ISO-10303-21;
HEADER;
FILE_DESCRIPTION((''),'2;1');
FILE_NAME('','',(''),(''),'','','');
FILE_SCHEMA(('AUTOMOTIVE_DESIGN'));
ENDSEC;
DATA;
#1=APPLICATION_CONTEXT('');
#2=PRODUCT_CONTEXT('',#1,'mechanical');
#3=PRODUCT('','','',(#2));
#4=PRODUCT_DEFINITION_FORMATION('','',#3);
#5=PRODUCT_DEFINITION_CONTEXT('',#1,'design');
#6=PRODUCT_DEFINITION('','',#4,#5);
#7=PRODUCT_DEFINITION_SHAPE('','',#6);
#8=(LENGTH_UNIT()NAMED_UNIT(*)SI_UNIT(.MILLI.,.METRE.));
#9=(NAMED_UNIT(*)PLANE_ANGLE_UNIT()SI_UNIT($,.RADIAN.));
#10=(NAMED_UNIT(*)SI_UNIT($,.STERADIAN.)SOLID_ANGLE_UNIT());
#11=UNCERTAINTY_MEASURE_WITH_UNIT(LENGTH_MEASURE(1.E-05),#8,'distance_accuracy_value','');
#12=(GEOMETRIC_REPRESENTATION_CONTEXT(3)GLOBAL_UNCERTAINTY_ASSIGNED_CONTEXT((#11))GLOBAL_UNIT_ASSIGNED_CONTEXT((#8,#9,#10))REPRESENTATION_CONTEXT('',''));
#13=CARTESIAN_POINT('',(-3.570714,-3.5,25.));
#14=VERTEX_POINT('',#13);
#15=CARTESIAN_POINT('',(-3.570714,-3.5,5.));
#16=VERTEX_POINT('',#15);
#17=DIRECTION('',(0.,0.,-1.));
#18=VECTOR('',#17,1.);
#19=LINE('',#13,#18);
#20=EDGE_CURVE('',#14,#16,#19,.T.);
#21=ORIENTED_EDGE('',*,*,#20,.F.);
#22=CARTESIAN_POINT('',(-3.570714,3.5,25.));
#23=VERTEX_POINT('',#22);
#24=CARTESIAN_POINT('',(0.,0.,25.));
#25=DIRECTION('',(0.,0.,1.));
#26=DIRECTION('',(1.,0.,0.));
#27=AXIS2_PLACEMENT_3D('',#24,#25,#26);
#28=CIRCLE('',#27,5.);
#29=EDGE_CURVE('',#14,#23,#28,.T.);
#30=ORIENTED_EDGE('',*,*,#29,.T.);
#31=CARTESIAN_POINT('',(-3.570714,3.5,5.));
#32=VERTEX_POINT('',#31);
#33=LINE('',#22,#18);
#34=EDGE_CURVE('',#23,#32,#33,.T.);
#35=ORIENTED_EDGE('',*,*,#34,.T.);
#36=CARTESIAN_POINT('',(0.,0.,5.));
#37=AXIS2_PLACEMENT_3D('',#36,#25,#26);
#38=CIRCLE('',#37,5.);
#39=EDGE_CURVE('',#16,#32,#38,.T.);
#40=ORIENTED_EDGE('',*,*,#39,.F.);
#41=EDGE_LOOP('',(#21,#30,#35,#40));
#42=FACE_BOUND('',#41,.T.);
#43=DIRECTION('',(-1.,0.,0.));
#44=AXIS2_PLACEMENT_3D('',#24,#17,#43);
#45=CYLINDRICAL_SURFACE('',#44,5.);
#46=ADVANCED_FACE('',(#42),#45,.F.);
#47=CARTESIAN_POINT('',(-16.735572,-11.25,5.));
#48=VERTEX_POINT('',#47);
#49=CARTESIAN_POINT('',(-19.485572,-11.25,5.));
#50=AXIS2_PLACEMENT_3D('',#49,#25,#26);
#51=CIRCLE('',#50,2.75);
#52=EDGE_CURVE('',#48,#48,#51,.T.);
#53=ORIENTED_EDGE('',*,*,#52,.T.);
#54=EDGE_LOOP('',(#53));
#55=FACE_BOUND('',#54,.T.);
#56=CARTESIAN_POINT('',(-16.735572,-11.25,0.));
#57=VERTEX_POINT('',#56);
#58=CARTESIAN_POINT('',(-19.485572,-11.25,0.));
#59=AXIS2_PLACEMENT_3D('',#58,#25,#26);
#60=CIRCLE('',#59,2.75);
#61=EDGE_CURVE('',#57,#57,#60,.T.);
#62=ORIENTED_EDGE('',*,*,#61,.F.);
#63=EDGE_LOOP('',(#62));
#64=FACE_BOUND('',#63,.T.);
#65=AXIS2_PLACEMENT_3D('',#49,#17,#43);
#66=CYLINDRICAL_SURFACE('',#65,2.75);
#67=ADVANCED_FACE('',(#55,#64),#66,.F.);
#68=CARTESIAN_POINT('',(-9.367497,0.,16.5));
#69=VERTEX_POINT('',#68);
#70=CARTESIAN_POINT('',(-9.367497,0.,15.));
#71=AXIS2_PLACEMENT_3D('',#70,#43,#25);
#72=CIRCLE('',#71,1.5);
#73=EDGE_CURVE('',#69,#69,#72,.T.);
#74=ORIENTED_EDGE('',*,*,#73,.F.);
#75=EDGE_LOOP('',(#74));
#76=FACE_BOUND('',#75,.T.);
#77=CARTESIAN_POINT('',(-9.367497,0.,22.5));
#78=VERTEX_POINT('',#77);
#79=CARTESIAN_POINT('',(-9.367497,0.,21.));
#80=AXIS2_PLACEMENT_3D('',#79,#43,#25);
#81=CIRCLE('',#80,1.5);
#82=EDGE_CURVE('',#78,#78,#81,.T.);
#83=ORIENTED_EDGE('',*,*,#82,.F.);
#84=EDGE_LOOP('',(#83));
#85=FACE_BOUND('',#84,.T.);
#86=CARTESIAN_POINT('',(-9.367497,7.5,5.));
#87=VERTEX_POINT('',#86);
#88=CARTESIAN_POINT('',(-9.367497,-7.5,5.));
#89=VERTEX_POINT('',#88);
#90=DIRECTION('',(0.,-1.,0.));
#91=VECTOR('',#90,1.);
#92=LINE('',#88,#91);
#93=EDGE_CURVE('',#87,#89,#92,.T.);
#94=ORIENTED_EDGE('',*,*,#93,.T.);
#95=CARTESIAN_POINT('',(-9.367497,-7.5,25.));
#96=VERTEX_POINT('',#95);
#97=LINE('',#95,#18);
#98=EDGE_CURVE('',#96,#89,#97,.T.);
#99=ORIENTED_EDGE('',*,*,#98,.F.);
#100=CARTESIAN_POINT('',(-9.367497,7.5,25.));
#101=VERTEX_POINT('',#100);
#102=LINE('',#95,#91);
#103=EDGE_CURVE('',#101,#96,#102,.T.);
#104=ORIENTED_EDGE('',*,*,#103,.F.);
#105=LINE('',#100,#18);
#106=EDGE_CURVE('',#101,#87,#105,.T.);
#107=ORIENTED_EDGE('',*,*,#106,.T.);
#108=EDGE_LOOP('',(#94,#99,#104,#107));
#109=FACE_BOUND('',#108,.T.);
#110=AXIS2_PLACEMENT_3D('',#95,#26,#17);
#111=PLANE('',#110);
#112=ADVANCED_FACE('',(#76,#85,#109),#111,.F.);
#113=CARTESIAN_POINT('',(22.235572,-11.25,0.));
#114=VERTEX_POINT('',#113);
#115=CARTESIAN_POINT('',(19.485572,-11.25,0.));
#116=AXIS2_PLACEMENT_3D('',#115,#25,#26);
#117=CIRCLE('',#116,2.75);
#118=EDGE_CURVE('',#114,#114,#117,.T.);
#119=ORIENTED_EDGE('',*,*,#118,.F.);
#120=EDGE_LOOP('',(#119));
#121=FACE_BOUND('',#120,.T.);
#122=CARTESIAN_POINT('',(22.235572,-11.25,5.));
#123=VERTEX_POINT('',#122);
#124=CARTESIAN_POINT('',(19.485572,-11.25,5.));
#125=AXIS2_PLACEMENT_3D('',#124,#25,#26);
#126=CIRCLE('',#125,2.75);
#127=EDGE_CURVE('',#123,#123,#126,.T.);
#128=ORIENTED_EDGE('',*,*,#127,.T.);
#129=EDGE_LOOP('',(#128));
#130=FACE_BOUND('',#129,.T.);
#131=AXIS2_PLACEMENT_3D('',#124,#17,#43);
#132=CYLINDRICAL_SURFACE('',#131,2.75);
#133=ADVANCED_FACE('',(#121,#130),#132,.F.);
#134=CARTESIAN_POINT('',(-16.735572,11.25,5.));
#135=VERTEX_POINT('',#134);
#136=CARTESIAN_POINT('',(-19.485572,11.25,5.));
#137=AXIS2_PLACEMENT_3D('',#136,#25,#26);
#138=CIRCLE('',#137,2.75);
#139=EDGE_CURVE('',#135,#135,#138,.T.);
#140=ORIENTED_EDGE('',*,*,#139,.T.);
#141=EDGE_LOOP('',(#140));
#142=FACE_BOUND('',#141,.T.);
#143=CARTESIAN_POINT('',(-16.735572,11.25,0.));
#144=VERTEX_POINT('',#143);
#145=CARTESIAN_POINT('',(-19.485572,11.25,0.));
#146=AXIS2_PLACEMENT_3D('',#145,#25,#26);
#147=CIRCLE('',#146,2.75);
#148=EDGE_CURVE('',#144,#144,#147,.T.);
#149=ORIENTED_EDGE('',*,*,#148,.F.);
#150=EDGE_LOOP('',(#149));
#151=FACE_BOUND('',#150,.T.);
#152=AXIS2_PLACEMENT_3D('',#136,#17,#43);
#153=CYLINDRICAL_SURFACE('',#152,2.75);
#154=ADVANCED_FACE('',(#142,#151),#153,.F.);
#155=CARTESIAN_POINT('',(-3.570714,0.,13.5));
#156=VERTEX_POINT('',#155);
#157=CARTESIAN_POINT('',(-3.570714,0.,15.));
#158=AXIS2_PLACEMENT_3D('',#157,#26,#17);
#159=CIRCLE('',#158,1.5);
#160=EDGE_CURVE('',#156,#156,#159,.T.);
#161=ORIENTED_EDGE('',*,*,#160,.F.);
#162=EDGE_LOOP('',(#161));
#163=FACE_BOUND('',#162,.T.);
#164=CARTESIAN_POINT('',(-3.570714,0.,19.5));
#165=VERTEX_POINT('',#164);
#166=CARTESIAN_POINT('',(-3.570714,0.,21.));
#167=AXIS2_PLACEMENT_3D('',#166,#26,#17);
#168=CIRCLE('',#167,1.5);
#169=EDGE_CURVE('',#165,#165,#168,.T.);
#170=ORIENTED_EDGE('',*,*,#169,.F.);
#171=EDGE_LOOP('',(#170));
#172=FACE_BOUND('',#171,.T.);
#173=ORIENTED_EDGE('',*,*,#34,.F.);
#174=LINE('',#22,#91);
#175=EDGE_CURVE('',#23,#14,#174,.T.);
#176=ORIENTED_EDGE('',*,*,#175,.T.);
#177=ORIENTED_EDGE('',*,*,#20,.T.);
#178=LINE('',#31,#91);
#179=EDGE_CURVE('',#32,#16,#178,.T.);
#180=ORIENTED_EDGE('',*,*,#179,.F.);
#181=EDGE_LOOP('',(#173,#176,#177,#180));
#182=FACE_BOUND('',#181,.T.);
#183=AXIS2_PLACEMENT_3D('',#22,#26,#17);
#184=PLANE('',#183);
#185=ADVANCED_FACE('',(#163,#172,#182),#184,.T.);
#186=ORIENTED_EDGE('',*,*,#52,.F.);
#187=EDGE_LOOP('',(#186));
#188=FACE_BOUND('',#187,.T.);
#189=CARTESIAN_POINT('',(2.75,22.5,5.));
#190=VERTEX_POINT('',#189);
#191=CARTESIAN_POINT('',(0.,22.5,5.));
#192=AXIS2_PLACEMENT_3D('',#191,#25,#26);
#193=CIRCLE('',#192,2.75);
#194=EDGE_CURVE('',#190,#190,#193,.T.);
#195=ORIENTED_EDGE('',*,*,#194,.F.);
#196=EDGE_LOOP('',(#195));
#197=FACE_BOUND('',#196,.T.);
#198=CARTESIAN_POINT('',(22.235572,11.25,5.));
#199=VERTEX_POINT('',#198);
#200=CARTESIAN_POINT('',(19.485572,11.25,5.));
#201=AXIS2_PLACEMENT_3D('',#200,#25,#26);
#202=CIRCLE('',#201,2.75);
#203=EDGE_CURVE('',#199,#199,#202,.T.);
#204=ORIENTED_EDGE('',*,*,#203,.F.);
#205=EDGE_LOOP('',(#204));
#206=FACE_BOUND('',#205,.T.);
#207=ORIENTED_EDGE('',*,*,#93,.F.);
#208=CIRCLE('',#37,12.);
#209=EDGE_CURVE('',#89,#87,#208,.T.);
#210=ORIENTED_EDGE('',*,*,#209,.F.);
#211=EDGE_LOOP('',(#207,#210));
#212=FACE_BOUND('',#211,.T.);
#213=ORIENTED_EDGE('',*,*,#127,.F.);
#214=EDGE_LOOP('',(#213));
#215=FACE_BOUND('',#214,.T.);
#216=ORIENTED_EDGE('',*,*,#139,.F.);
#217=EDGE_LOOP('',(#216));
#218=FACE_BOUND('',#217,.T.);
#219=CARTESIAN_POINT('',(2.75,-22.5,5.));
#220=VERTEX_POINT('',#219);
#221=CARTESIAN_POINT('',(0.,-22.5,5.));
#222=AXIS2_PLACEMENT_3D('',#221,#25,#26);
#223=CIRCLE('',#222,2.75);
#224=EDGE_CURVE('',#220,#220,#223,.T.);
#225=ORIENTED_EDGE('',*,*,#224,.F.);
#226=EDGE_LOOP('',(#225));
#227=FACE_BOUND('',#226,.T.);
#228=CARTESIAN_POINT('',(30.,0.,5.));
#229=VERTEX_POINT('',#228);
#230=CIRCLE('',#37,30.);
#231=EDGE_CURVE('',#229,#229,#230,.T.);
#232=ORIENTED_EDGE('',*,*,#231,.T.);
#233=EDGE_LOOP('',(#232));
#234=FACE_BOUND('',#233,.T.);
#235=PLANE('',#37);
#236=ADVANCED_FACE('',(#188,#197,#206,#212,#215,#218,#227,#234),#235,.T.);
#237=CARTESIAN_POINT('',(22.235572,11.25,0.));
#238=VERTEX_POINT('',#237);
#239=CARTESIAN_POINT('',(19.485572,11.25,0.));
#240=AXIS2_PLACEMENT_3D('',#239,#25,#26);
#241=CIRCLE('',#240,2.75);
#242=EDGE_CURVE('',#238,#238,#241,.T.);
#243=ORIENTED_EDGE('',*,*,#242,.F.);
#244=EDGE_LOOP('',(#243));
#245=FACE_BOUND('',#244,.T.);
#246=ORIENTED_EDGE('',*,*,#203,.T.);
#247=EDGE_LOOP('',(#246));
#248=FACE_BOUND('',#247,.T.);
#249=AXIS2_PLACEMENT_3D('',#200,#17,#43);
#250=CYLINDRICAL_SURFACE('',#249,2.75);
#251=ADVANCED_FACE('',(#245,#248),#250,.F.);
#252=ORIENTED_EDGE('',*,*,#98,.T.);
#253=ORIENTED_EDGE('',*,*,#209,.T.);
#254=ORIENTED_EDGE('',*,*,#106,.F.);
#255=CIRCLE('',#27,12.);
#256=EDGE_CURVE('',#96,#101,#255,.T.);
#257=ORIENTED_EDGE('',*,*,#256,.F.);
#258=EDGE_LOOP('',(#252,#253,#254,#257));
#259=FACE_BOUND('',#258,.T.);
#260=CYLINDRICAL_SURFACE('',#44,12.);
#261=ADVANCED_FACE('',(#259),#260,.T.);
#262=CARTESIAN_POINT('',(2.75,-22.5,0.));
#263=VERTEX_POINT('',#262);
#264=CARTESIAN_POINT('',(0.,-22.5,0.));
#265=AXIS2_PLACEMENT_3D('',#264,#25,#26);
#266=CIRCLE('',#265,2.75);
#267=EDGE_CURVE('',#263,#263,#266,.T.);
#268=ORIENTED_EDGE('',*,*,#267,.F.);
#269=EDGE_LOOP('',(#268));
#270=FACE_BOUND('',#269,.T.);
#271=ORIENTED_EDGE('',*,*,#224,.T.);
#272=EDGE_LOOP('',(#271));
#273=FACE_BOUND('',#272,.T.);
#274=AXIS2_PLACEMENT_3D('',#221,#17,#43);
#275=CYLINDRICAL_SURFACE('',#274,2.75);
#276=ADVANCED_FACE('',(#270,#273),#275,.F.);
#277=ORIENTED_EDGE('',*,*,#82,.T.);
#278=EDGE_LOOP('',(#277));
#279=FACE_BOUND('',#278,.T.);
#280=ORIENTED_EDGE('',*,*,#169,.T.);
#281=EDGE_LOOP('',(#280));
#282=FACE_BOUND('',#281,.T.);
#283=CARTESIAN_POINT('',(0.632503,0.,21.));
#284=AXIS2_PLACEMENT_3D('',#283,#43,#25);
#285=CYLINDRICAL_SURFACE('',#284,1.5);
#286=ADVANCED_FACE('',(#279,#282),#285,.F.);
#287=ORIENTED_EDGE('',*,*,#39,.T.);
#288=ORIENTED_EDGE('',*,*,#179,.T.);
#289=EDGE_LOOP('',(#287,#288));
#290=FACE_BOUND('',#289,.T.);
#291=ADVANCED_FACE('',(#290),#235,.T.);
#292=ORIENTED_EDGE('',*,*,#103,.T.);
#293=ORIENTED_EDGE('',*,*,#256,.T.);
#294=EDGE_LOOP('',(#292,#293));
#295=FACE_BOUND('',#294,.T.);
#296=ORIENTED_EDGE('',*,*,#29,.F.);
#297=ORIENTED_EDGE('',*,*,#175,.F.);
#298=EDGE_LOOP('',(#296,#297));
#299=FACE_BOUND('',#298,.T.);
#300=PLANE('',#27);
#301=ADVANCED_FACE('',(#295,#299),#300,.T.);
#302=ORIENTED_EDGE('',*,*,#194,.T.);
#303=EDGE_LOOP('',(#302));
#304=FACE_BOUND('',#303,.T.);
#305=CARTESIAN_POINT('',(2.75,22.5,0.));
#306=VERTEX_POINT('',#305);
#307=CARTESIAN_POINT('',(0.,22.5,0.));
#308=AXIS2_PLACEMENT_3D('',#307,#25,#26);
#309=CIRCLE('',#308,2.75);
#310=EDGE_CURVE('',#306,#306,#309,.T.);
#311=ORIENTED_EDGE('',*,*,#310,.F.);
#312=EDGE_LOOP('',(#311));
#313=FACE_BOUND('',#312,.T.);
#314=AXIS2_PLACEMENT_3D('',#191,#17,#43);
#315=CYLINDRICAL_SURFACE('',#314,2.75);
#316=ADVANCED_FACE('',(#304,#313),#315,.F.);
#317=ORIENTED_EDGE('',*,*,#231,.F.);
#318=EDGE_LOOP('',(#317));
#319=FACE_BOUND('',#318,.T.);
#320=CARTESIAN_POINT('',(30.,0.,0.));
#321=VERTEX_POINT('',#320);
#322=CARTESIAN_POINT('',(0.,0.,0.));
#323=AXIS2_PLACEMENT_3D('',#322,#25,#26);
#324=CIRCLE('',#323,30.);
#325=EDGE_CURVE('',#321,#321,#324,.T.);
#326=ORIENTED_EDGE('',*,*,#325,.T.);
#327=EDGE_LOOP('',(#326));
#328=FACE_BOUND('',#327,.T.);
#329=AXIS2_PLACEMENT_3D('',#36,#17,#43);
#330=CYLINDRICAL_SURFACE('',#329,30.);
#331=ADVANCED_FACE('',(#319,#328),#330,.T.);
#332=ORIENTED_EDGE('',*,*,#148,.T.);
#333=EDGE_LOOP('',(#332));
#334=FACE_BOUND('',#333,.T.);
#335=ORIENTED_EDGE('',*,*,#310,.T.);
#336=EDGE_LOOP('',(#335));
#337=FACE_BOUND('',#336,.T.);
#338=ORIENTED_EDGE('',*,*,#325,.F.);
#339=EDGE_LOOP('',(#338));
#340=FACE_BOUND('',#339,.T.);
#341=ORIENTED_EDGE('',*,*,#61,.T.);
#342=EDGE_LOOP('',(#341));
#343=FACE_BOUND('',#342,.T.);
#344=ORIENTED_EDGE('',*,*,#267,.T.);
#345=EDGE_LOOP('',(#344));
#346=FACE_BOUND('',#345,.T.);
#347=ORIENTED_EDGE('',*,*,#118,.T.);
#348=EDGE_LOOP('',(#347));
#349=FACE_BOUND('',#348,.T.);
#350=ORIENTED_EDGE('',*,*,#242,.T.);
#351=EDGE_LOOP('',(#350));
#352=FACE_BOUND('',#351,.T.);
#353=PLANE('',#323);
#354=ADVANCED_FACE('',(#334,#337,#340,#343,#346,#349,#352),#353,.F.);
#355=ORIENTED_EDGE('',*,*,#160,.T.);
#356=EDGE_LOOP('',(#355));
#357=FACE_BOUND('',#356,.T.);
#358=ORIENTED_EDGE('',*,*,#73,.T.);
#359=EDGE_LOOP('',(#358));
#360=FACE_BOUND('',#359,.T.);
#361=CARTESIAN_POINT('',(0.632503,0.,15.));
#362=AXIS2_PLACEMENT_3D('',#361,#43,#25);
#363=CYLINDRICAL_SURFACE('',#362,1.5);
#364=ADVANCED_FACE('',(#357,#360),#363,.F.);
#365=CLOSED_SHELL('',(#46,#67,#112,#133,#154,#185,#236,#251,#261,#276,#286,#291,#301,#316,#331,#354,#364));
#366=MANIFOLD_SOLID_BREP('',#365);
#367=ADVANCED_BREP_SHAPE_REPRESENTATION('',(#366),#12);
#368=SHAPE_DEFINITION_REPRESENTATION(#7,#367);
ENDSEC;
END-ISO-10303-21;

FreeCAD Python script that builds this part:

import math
import FreeCAD as App
import Part
import Sketcher
from FreeCAD import Vector

doc = App.newDocument("Part")
body = doc.addObject("PartDesign::Body", "Body")

sketch1 = doc.addObject("Sketcher::SketchObject", "Sketch")
body.addObject(sketch1)
sketch1.AttachmentSupport = (doc.XY_Plane, [""])
sketch1.MapMode = "FlatFace"
sketch1.addGeometry([
    Part.Circle(Vector(0, 0, 0), Vector(0, 0, 1), 30),
    Part.Circle(Vector(-19.5, -11.2, 0), Vector(0, 0, 1), 2.8),
    Part.Circle(Vector(0, -22.5, 0), Vector(0, 0, 1), 2.8),
    Part.Circle(Vector(19.5, -11.2, 0), Vector(0, 0, 1), 2.8),
    Part.Circle(Vector(-19.5, 11.2, 0), Vector(0, 0, 1), 2.8),
    Part.Circle(Vector(19.5, 11.2, 0), Vector(0, 0, 1), 2.8),
    Part.Circle(Vector(0, 22.5, 0), Vector(0, 0, 1), 2.8),
], False)
sketch1.addConstraint([
    Sketcher.Constraint("Coincident", 0, 3, -1, 1),
    Sketcher.Constraint("Equal", 1, 2),
    Sketcher.Constraint("Equal", 2, 3),
    Sketcher.Constraint("Equal", 3, 4),
    Sketcher.Constraint("Equal", 4, 5),
    Sketcher.Constraint("Equal", 5, 6),
    Sketcher.Constraint("Symmetric", 3, 3, 4, 3, -1, 1),
    Sketcher.Constraint("Symmetric", 1, 3, 5, 3, -1, 1),
    Sketcher.Constraint("Symmetric", 2, 3, 6, 3, -1, 1),
    Sketcher.Constraint("Symmetric", 1, 3, 3, 3, -2),
    Sketcher.Constraint("PointOnObject", 2, 3, -2),
    Sketcher.Constraint("Diameter", 0, 60.0),
    Sketcher.Constraint("Diameter", 1, 5.5),
    Sketcher.Constraint("DistanceY", 2, 3, -1, 1, 22.5),
    Sketcher.Constraint("DistanceY", 1, 3, 4, 3, 22.5),
    Sketcher.Constraint("DistanceX", 1, 3, -1, 1, 19.485572),
])
pad1 = doc.addObject("PartDesign::Pad", "Pad")
body.addObject(pad1)
pad1.Profile = sketch1
pad1.Length = 5

sketch2 = doc.addObject("Sketcher::SketchObject", "Sketch001")
body.addObject(sketch2)
sketch2.AttachmentSupport = (doc.XY_Plane, [""])
sketch2.MapMode = "FlatFace"
sketch2.AttachmentOffset = App.Placement(Vector(0, 0, 5), App.Rotation())
sketch2.addGeometry([
    Part.LineSegment(Vector(-9, 8, 0), Vector(-9, -8, 0)),
    Part.ArcOfCircle(Part.Circle(Vector(0, 0, 0), Vector(0, 0, 1), 12), math.radians(-141), math.radians(141)),
    Part.ArcOfCircle(Part.Circle(Vector(0, 0, 0), Vector(0, 0, 1), 5), math.radians(-136), math.radians(136)),
    Part.LineSegment(Vector(-4, -4, 0), Vector(-4, 4, 0)),
], False)
sketch2.addConstraint([
    Sketcher.Constraint("Coincident", 0, 1, 1, 2),
    Sketcher.Constraint("Coincident", 1, 1, 0, 2),
    Sketcher.Constraint("Coincident", 2, 1, 3, 1),
    Sketcher.Constraint("Coincident", 3, 2, 2, 2),
    Sketcher.Constraint("Vertical", 0),
    Sketcher.Constraint("Vertical", 3),
    Sketcher.Constraint("Coincident", 1, 3, -1, 1),
    Sketcher.Constraint("Coincident", 2, 3, -1, 1),
    Sketcher.Constraint("Radius", 1, 12.0),
    Sketcher.Constraint("Radius", 2, 5.0),
    Sketcher.Constraint("DistanceY", 0, 2, 0, 1, 15.0),
    Sketcher.Constraint("DistanceY", 3, 1, 3, 2, 7.0),
])
pad2 = doc.addObject("PartDesign::Pad", "Pad001")
body.addObject(pad2)
pad2.Profile = sketch2
pad2.Length = 20

sketch3 = doc.addObject("Sketcher::SketchObject", "Sketch002")
body.addObject(sketch3)
sketch3.AttachmentSupport = (doc.YZ_Plane, [""])
sketch3.MapMode = "FlatFace"
sketch3.AttachmentOffset = App.Placement(Vector(0, 0, -9.367497), App.Rotation())
sketch3.addGeometry([
    Part.Circle(Vector(0, 21, 0), Vector(0, 0, 1), 1.5),
    Part.Circle(Vector(0, 15, 0), Vector(0, 0, 1), 1.5),
], False)
sketch3.addConstraint([
    Sketcher.Constraint("Equal", 0, 1),
    Sketcher.Constraint("PointOnObject", 0, 3, -2),
    Sketcher.Constraint("PointOnObject", 1, 3, -2),
    Sketcher.Constraint("Diameter", 0, 3.0),
    Sketcher.Constraint("DistanceY", -1, 1, 0, 3, 21.0),
    Sketcher.Constraint("DistanceY", -1, 1, 1, 3, 15.0),
])
pocket1 = doc.addObject("PartDesign::Pocket", "Pocket")
body.addObject(pocket1)
pocket1.Profile = sketch3
pocket1.Length = 10
pocket1.Reversed = True

doc.recompute()
